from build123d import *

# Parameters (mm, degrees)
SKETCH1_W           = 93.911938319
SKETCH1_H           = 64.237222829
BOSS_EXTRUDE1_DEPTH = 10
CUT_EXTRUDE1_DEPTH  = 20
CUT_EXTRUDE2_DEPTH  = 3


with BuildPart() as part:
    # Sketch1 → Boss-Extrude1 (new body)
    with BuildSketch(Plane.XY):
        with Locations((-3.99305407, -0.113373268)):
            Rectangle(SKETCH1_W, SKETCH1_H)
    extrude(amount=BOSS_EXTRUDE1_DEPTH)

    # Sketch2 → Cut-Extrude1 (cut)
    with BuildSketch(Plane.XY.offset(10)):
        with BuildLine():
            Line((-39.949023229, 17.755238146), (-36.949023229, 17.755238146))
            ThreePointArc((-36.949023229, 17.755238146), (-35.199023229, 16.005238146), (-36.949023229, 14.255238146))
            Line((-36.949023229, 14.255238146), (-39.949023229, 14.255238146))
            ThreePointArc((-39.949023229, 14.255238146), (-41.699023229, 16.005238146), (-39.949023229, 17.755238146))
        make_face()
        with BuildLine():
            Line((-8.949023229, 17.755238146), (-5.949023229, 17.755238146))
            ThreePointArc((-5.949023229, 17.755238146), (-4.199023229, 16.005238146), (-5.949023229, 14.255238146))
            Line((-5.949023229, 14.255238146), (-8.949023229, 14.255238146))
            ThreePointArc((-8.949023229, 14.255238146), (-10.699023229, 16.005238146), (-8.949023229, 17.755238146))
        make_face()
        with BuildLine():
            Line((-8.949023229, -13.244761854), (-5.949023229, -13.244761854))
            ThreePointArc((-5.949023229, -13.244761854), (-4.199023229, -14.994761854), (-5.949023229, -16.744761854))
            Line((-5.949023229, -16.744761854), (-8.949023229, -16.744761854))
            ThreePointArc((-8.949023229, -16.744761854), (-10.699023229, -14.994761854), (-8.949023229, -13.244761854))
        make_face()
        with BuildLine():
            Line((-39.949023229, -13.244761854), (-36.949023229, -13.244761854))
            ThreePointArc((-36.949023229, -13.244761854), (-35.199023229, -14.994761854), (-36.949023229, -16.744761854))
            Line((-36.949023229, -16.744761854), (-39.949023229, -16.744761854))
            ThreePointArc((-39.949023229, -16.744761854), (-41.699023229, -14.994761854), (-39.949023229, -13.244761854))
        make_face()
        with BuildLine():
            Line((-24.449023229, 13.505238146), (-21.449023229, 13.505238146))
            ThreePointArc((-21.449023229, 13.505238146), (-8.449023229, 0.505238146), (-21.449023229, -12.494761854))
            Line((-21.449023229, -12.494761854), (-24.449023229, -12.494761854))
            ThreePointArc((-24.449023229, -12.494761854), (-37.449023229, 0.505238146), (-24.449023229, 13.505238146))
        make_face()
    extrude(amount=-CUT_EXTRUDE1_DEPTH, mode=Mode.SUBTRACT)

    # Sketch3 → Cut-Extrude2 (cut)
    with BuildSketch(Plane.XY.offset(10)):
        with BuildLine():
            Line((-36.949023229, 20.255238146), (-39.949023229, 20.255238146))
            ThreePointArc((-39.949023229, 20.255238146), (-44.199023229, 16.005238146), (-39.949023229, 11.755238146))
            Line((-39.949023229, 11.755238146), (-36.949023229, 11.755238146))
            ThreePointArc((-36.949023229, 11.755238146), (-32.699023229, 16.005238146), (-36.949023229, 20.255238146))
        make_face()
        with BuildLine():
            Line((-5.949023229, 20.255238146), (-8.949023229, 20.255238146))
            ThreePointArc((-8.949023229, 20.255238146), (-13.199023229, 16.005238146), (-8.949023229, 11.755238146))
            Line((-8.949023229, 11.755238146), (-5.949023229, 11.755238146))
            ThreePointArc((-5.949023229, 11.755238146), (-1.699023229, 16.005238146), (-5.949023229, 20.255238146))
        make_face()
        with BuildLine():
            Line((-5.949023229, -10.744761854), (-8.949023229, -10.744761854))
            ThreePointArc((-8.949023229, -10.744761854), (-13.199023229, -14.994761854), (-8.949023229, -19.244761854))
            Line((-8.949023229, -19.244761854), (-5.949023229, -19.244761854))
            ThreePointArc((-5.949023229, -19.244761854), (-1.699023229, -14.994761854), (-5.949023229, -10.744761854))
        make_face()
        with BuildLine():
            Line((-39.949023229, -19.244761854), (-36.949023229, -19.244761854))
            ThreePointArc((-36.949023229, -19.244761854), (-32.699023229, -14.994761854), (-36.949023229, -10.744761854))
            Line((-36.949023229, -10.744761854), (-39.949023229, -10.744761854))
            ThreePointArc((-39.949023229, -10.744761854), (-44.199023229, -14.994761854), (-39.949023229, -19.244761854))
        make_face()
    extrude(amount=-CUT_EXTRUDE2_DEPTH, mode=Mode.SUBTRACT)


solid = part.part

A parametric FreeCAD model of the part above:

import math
import FreeCAD as App
import Part
import Sketcher
from FreeCAD import Vector
Q = App.Units.Quantity


def add_polygon(sketch, points):
    """Adds a closed chain of lines whose ends are joined by coincident constraints."""
    first, n = sketch.GeometryCount, len(points)
    for a, b in zip(points, points[1:] + points[:1]):
        sketch.addGeometry(Part.LineSegment(App.Vector(*a, 0), App.Vector(*b, 0)), False)
    for i in range(n):
        sketch.addConstraint(Sketcher.Constraint("Coincident", first + i, 2, first + (i + 1) % n, 1))

doc = App.newDocument("Part")
body = doc.addObject("PartDesign::Body", "Body")

# Sketch on XY plane
sketch1 = body.newObject("Sketcher::SketchObject", "Sketch")
sketch1.AttachmentSupport = (doc.getObject("XY_Plane"), [""])
sketch1.MapMode = "FlatFace"
add_polygon(sketch1, [(-50.949023, 32.005238), (-50.949023, -32.231985), (42.962915, -32.231985), (42.962915, 32.005238)])  # lines 0-3
sketch1.addConstraint(Sketcher.Constraint("Vertical", 0))
sketch1.addConstraint(Sketcher.Constraint("Horizontal", 1))
sketch1.addConstraint(Sketcher.Constraint("Vertical", 2))
sketch1.addConstraint(Sketcher.Constraint("Horizontal", 3))
sketch1.addConstraint(Sketcher.Constraint("DistanceX", 1, 1, 1, 2, Q("93.911938 mm")))
sketch1.addConstraint(Sketcher.Constraint("DistanceY", 0, 2, 0, 1, Q("64.237223 mm")))
sketch1.addConstraint(Sketcher.Constraint("DistanceY", -1, 1, 2, 2, Q("32.005238 mm")))
sketch1.addConstraint(Sketcher.Constraint("DistanceX", 0, 2, -1, 1, Q("50.949023 mm")))
pad1 = body.newObject("PartDesign::Pad", "Pad")
pad1.Profile = sketch1
pad1.Length = 10

# Sketch on XY plane
sketch2 = body.newObject("Sketcher::SketchObject", "Sketch001")
sketch2.AttachmentSupport = (doc.getObject("XY_Plane"), [""])
sketch2.MapMode = "FlatFace"
sketch2.AttachmentOffset = App.Placement(Vector(0, 0, 10), App.Rotation())
sketch2.addGeometry(Part.LineSegment(Vector(-36.949023, 17.755238, 0), Vector(-39.949023, 17.755238, 0)), False)
sketch2.addGeometry(Part.ArcOfCircle(Part.Circle(Vector(-39.949023, 16.005238, 0), Vector(0, 0, 1), 1.75), math.radians(90), math.radians(270)), False)
sketch2.addGeometry(Part.LineSegment(Vector(-39.949023, 14.255238, 0), Vector(-36.949023, 14.255238, 0)), False)
sketch2.addGeometry(Part.ArcOfCircle(Part.Circle(Vector(-36.949023, 16.005238, 0), Vector(0, 0, 1), 1.75), math.radians(-90), math.radians(90)), False)
sketch2.addGeometry(Part.LineSegment(Vector(-5.949023, 17.755238, 0), Vector(-8.949023, 17.755238, 0)), False)
sketch2.addGeometry(Part.ArcOfCircle(Part.Circle(Vector(-8.949023, 16.005238, 0), Vector(0, 0, 1), 1.75), math.radians(90), math.radians(270)), False)
sketch2.addGeometry(Part.LineSegment(Vector(-8.949023, 14.255238, 0), Vector(-5.949023, 14.255238, 0)), False)
sketch2.addGeometry(Part.ArcOfCircle(Part.Circle(Vector(-5.949023, 16.005238, 0), Vector(0, 0, 1), 1.75), math.radians(-90), math.radians(90)), False)
sketch2.addGeometry(Part.LineSegment(Vector(-5.949023, -13.244762, 0), Vector(-8.949023, -13.244762, 0)), False)
sketch2.addGeometry(Part.ArcOfCircle(Part.Circle(Vector(-8.949023, -14.994762, 0), Vector(0, 0, 1), 1.75), math.radians(90), math.radians(270)), False)
sketch2.addGeometry(Part.LineSegment(Vector(-8.949023, -16.744762, 0), Vector(-5.949023, -16.744762, 0)), False)
sketch2.addGeometry(Part.ArcOfCircle(Part.Circle(Vector(-5.949023, -14.994762, 0), Vector(0, 0, 1), 1.75), math.radians(-90), math.radians(90)), False)
sketch2.addGeometry(Part.LineSegment(Vector(-36.949023, -13.244762, 0), Vector(-39.949023, -13.244762, 0)), False)
sketch2.addGeometry(Part.ArcOfCircle(Part.Circle(Vector(-39.949023, -14.994762, 0), Vector(0, 0, 1), 1.75), math.radians(90), math.radians(270)), False)
sketch2.addGeometry(Part.LineSegment(Vector(-39.949023, -16.744762, 0), Vector(-36.949023, -16.744762, 0)), False)
sketch2.addGeometry(Part.ArcOfCircle(Part.Circle(Vector(-36.949023, -14.994762, 0), Vector(0, 0, 1), 1.75), math.radians(-90), math.radians(90)), False)
sketch2.addGeometry(Part.LineSegment(Vector(-21.449023, 13.505238, 0), Vector(-24.449023, 13.505238, 0)), False)
sketch2.addGeometry(Part.ArcOfCircle(Part.Circle(Vector(-24.449023, 0.505238, 0), Vector(0, 0, 1), 13), math.radians(90), math.radians(270)), False)
sketch2.addGeometry(Part.LineSegment(Vector(-24.449023, -12.494762, 0), Vector(-21.449023, -12.494762, 0)), False)
sketch2.addGeometry(Part.ArcOfCircle(Part.Circle(Vector(-21.449023, 0.505238, 0), Vector(0, 0, 1), 13), math.radians(-90), math.radians(90)), False)
sketch2.addConstraint(Sketcher.Constraint("Tangent", 0, 2, 1, 1))
sketch2.addConstraint(Sketcher.Constraint("Tangent", 1, 2, 2, 1))
sketch2.addConstraint(Sketcher.Constraint("Tangent", 2, 2, 3, 1))
sketch2.addConstraint(Sketcher.Constraint("Tangent", 3, 2, 0, 1))
sketch2.addConstraint(Sketcher.Constraint("Tangent", 4, 2, 5, 1))
sketch2.addConstraint(Sketcher.Constraint("Tangent", 5, 2, 6, 1))
sketch2.addConstraint(Sketcher.Constraint("Tangent", 6, 2, 7, 1))
sketch2.addConstraint(Sketcher.Constraint("Tangent", 7, 2, 4, 1))
sketch2.addConstraint(Sketcher.Constraint("Tangent", 8, 2, 9, 1))
sketch2.addConstraint(Sketcher.Constraint("Tangent", 9, 2, 10, 1))
sketch2.addConstraint(Sketcher.Constraint("Tangent", 10, 2, 11, 1))
sketch2.addConstraint(Sketcher.Constraint("Tangent", 11, 2, 8, 1))
sketch2.addConstraint(Sketcher.Constraint("Tangent", 12, 2, 13, 1))
sketch2.addConstraint(Sketcher.Constraint("Tangent", 13, 2, 14, 1))
sketch2.addConstraint(Sketcher.Constraint("Tangent", 14, 2, 15, 1))
sketch2.addConstraint(Sketcher.Constraint("Tangent", 15, 2, 12, 1))
sketch2.addConstraint(Sketcher.Constraint("Tangent", 16, 2, 17, 1))
sketch2.addConstraint(Sketcher.Constraint("Tangent", 17, 2, 18, 1))
sketch2.addConstraint(Sketcher.Constraint("Tangent", 18, 2, 19, 1))
sketch2.addConstraint(Sketcher.Constraint("Tangent", 19, 2, 16, 1))
sketch2.addConstraint(Sketcher.Constraint("Horizontal", 0))
sketch2.addConstraint(Sketcher.Constraint("Horizontal", 2))
sketch2.addConstraint(Sketcher.Constraint("Horizontal", 4))
sketch2.addConstraint(Sketcher.Constraint("Horizontal", 6))
sketch2.addConstraint(Sketcher.Constraint("Horizontal", 8))
sketch2.addConstraint(Sketcher.Constraint("Horizontal", 10))
sketch2.addConstraint(Sketcher.Constraint("Horizontal", 12))
sketch2.addConstraint(Sketcher.Constraint("Horizontal", 14))
sketch2.addConstraint(Sketcher.Constraint("Horizontal", 16))
sketch2.addConstraint(Sketcher.Constraint("Horizontal", 18))
sketch2.addConstraint(Sketcher.Constraint("Equal", 3, 5))
sketch2.addConstraint(Sketcher.Constraint("Equal", 7, 9))
sketch2.addConstraint(Sketcher.Constraint("Equal", 11, 13))
sketch2.addConstraint(Sketcher.Constraint("Horizontal", 3, 3, 5, 3))
sketch2.addConstraint(Sketcher.Constraint("Horizontal", 11, 3, 13, 3))
sketch2.addConstraint(Sketcher.Constraint("Vertical", 5, 3, 9, 3))
sketch2.addConstraint(Sketcher.Constraint("Vertical", 7, 3, 11, 3))
sketch2.addConstraint(Sketcher.Constraint("Vertical", 1, 3, 13, 3))
sketch2.addConstraint(Sketcher.Constraint("Vertical", 3, 3, 15, 3))
sketch2.addConstraint(Sketcher.Constraint("Equal", 2, 4))
sketch2.addConstraint(Sketcher.Constraint("Equal", 14, 16))
sketch2.addConstraint(Sketcher.Constraint("Radius", 17, Q("13 mm")))
sketch2.addConstraint(Sketcher.Constraint("DistanceX", 0, 2, 0, 1, Q("3 mm")))
sketch2.addConstraint(Sketcher.Constraint("Radius", 1, Q("1.75 mm")))
sketch2.addConstraint(Sketcher.Constraint("DistanceX", 3, 3, 5, 3, Q("28 mm")))
sketch2.addConstraint(Sketcher.Constraint("DistanceY", 9, 3, 5, 3, Q("31 mm")))
sketch2.addConstraint(Sketcher.Constraint("DistanceX", 3, 3, 17, 3, Q("12.5 mm")))
sketch2.addConstraint(Sketcher.Constraint("DistanceY", 17, 3, 3, 3, Q("15.5 mm")))
sketch2.addConstraint(Sketcher.Constraint("DistanceY", -1, 1, 1, 3, Q("16.005238 mm")))
sketch2.addConstraint(Sketcher.Constraint("DistanceX", 1, 3, -1, 1, Q("39.949023 mm")))
pocket1 = body.newObject("PartDesign::Pocket", "Pocket")
pocket1.Profile = sketch2
pocket1.Length = 20

# Sketch on XY plane
sketch3 = body.newObject("Sketcher::SketchObject", "Sketch002")
sketch3.AttachmentSupport = (doc.getObject("XY_Plane"), [""])
sketch3.MapMode = "FlatFace"
sketch3.AttachmentOffset = App.Placement(Vector(0, 0, 10), App.Rotation())
sketch3.addGeometry(Part.LineSegment(Vector(-36.949023, 20.255238, 0), Vector(-39.949023, 20.255238, 0)), False)
sketch3.addGeometry(Part.ArcOfCircle(Part.Circle(Vector(-39.949023, 16.005238, 0), Vector(0, 0, 1), 4.25), math.radians(90), math.radians(270)), False)
sketch3.addGeometry(Part.LineSegment(Vector(-39.949023, 11.755238, 0), Vector(-36.949023, 11.755238, 0)), False)
sketch3.addGeometry(Part.ArcOfCircle(Part.Circle(Vector(-36.949023, 16.005238, 0), Vector(0, 0, 1), 4.25), math.radians(-90), math.radians(90)), False)
sketch3.addGeometry(Part.LineSegment(Vector(-5.949023, 20.255238, 0), Vector(-8.949023, 20.255238, 0)), False)
sketch3.addGeometry(Part.ArcOfCircle(Part.Circle(Vector(-8.949023, 16.005238, 0), Vector(0, 0, 1), 4.25), math.radians(90), math.radians(270)), False)
sketch3.addGeometry(Part.LineSegment(Vector(-8.949023, 11.755238, 0), Vector(-5.949023, 11.755238, 0)), False)
sketch3.addGeometry(Part.ArcOfCircle(Part.Circle(Vector(-5.949023, 16.005238, 0), Vector(0, 0, 1), 4.25), math.radians(-90), math.radians(90)), False)
sketch3.addGeometry(Part.LineSegment(Vector(-5.949023, -10.744762, 0), Vector(-8.949023, -10.744762, 0)), False)
sketch3.addGeometry(Part.ArcOfCircle(Part.Circle(Vector(-8.949023, -14.994762, 0), Vector(0, 0, 1), 4.25), math.radians(90), math.radians(270)), False)
sketch3.addGeometry(Part.LineSegment(Vector(-8.949023, -19.244762, 0), Vector(-5.949023, -19.244762, 0)), False)
sketch3.addGeometry(Part.ArcOfCircle(Part.Circle(Vector(-5.949023, -14.994762, 0), Vector(0, 0, 1), 4.25), math.radians(-90), math.radians(90)), False)
sketch3.addGeometry(Part.LineSegment(Vector(-39.949023, -19.244762, 0), Vector(-36.949023, -19.244762, 0)), False)
sketch3.addGeometry(Part.ArcOfCircle(Part.Circle(Vector(-36.949023, -14.994762, 0), Vector(0, 0, 1), 4.25), math.radians(-90), math.radians(90)), False)
sketch3.addGeometry(Part.LineSegment(Vector(-36.949023, -10.744762, 0), Vector(-39.949023, -10.744762, 0)), False)
sketch3.addGeometry(Part.ArcOfCircle(Part.Circle(Vector(-39.949023, -14.994762, 0), Vector(0, 0, 1), 4.25), math.radians(90), math.radians(270)), False)
sketch3.addConstraint(Sketcher.Constraint("Tangent", 0, 2, 1, 1))
sketch3.addConstraint(Sketcher.Constraint("Tangent", 1, 2, 2, 1))
sketch3.addConstraint(Sketcher.Constraint("Tangent", 2, 2, 3, 1))
sketch3.addConstraint(Sketcher.Constraint("Tangent", 3, 2, 0, 1))
sketch3.addConstraint(Sketcher.Constraint("Tangent", 4, 2, 5, 1))
sketch3.addConstraint(Sketcher.Constraint("Tangent", 5, 2, 6, 1))
sketch3.addConstraint(Sketcher.Constraint("Tangent", 6, 2, 7, 1))
sketch3.addConstraint(Sketcher.Constraint("Tangent", 7, 2, 4, 1))
sketch3.addConstraint(Sketcher.Constraint("Tangent", 8, 2, 9, 1))
sketch3.addConstraint(Sketcher.Constraint("Tangent", 9, 2, 10, 1))
sketch3.addConstraint(Sketcher.Constraint("Tangent", 10, 2, 11, 1))
sketch3.addConstraint(Sketcher.Constraint("Tangent", 11, 2, 8, 1))
sketch3.addConstraint(Sketcher.Constraint("Tangent", 12, 2, 13, 1))
sketch3.addConstraint(Sketcher.Constraint("Tangent", 13, 2, 14, 1))
sketch3.addConstraint(Sketcher.Constraint("Tangent", 14, 2, 15, 1))
sketch3.addConstraint(Sketcher.Constraint("Tangent", 15, 2, 12, 1))
sketch3.addConstraint(Sketcher.Constraint("Horizontal", 0))
sketch3.addConstraint(Sketcher.Constraint("Horizontal", 2))
sketch3.addConstraint(Sketcher.Constraint("Horizontal", 4))
sketch3.addConstraint(Sketcher.Constraint("Horizontal", 6))
sketch3.addConstraint(Sketcher.Constraint("Horizontal", 8))
sketch3.addConstraint(Sketcher.Constraint("Horizontal", 10))
sketch3.addConstraint(Sketcher.Constraint("Horizontal", 12))
sketch3.addConstraint(Sketcher.Constraint("Horizontal", 14))
sketch3.addConstraint(Sketcher.Constraint("Equal", 3, 5))
sketch3.addConstraint(Sketcher.Constraint("Equal", 7, 9))
sketch3.addConstraint(Sketcher.Constraint("Equal", 11, 13))
sketch3.addConstraint(Sketcher.Constraint("Horizontal", 3, 3, 5, 3))
sketch3.addConstraint(Sketcher.Constraint("Horizontal", 11, 3, 13, 3))
sketch3.addConstraint(Sketcher.Constraint("Vertical", 5, 3, 9, 3))
sketch3.addConstraint(Sketcher.Constraint("Vertical", 7, 3, 11, 3))
sketch3.addConstraint(Sketcher.Constraint("Vertical", 3, 3, 13, 3))
sketch3.addConstraint(Sketcher.Constraint("Vertical", 1, 3, 15, 3))
sketch3.addConstraint(Sketcher.Constraint("Equal", 2, 4))
sketch3.addConstraint(Sketcher.Constraint("DistanceX", 0, 2, 0, 1, Q("3 mm")))
sketch3.addConstraint(Sketcher.Constraint("Radius", 1, Q("4.25 mm")))
sketch3.addConstraint(Sketcher.Constraint("DistanceX", 3, 3, 5, 3, Q("28 mm")))
sketch3.addConstraint(Sketcher.Constraint("DistanceY", 9, 3, 5, 3, Q("31 mm")))
sketch3.addConstraint(Sketcher.Constraint("DistanceY", -1, 1, 1, 3, Q("16.005238 mm")))
sketch3.addConstraint(Sketcher.Constraint("DistanceX", 1, 3, -1, 1, Q("39.949023 mm")))
pocket2 = body.newObject("PartDesign::Pocket", "Pocket001")
pocket2.Profile = sketch3
pocket2.Length = 3

doc.recompute()
